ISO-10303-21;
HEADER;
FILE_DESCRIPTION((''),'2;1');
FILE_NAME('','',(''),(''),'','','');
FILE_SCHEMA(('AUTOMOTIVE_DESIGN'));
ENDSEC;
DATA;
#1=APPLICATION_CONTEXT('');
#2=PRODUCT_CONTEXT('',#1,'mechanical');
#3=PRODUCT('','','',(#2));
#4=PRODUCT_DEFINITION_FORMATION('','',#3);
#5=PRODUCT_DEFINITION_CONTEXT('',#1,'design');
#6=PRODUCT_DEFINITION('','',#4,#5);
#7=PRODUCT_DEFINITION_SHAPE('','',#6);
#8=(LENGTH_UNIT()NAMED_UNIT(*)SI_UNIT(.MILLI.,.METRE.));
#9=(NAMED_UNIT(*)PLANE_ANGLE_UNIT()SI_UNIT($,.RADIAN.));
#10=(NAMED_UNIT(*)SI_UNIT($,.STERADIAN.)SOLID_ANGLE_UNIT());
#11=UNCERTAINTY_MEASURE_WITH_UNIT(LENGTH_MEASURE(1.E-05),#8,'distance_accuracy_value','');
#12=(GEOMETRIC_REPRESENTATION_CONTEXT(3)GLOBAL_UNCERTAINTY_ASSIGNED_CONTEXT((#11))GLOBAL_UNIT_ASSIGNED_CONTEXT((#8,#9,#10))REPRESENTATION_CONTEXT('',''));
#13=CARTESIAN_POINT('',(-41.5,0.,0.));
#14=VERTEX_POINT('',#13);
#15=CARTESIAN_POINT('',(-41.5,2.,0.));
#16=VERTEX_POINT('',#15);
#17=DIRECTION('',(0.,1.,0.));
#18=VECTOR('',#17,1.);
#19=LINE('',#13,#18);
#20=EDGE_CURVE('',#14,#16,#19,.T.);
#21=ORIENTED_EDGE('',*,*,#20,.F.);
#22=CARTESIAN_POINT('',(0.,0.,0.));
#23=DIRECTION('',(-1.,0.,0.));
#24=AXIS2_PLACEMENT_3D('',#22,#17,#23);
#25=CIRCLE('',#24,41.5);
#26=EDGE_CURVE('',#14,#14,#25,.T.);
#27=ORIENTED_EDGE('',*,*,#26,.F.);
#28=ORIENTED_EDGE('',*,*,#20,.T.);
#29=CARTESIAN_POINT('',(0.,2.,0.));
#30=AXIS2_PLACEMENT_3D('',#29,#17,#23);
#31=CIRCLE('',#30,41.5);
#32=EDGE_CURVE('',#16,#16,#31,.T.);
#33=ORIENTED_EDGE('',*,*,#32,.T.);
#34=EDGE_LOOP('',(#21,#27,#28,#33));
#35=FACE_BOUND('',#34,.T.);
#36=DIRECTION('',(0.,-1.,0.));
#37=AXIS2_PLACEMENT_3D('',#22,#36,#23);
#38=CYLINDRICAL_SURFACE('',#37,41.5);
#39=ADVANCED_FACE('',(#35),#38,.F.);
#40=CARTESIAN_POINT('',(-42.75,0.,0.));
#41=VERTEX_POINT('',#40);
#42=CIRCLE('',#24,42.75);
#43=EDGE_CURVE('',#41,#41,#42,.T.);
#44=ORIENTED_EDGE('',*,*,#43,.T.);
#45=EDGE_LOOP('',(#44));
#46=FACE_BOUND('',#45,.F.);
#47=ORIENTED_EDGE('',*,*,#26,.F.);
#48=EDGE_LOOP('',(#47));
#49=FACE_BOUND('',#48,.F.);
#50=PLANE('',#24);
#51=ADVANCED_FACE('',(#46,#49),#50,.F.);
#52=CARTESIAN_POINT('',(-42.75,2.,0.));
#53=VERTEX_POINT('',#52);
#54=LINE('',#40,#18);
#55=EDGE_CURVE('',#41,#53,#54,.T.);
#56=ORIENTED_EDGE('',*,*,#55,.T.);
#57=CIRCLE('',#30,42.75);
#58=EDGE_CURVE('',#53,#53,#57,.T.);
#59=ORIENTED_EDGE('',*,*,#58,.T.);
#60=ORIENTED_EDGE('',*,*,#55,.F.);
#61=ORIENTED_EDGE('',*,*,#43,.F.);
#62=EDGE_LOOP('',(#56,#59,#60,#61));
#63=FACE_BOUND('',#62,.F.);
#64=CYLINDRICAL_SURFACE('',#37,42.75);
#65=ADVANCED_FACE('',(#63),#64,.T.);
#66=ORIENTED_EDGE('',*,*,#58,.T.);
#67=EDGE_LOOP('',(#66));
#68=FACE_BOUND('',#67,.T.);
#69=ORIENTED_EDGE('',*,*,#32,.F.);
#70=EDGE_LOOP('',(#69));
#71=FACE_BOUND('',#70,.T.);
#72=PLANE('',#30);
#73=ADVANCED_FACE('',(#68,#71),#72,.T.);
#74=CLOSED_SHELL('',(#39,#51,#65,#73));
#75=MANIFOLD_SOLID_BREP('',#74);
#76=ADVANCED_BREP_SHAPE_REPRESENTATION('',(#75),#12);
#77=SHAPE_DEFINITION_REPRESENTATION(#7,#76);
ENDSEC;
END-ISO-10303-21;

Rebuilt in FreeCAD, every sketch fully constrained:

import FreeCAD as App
import Part
import Sketcher

V = App.Vector

doc = App.newDocument("Part")
body = doc.addObject("PartDesign::Body", "Body")

sketch1 = doc.addObject("Sketcher::SketchObject", "Sketch")
body.addObject(sketch1)
sketch1.AttachmentSupport = (doc.XZ_Plane, [""])
sketch1.MapMode = "FlatFace"
sketch1.addGeometry([
    Part.Circle(V(0, 0, 0), V(0, 0, 1), 42.75),
    Part.Circle(V(0, 0, 0), V(0, 0, 1), 41.5),
], False)
sketch1.addConstraint([
    Sketcher.Constraint("Coincident", 0, 3, -1, 1),
    Sketcher.Constraint("Coincident", 1, 3, -1, 1),
    Sketcher.Constraint("Diameter", 1, 83.0),
    Sketcher.Constraint("Diameter", 0, 85.5),
])
pad1 = doc.addObject("PartDesign::Pad", "Pad")
body.addObject(pad1)
pad1.Profile = sketch1
pad1.Length = 2
pad1.Reversed = True

doc.recompute()
